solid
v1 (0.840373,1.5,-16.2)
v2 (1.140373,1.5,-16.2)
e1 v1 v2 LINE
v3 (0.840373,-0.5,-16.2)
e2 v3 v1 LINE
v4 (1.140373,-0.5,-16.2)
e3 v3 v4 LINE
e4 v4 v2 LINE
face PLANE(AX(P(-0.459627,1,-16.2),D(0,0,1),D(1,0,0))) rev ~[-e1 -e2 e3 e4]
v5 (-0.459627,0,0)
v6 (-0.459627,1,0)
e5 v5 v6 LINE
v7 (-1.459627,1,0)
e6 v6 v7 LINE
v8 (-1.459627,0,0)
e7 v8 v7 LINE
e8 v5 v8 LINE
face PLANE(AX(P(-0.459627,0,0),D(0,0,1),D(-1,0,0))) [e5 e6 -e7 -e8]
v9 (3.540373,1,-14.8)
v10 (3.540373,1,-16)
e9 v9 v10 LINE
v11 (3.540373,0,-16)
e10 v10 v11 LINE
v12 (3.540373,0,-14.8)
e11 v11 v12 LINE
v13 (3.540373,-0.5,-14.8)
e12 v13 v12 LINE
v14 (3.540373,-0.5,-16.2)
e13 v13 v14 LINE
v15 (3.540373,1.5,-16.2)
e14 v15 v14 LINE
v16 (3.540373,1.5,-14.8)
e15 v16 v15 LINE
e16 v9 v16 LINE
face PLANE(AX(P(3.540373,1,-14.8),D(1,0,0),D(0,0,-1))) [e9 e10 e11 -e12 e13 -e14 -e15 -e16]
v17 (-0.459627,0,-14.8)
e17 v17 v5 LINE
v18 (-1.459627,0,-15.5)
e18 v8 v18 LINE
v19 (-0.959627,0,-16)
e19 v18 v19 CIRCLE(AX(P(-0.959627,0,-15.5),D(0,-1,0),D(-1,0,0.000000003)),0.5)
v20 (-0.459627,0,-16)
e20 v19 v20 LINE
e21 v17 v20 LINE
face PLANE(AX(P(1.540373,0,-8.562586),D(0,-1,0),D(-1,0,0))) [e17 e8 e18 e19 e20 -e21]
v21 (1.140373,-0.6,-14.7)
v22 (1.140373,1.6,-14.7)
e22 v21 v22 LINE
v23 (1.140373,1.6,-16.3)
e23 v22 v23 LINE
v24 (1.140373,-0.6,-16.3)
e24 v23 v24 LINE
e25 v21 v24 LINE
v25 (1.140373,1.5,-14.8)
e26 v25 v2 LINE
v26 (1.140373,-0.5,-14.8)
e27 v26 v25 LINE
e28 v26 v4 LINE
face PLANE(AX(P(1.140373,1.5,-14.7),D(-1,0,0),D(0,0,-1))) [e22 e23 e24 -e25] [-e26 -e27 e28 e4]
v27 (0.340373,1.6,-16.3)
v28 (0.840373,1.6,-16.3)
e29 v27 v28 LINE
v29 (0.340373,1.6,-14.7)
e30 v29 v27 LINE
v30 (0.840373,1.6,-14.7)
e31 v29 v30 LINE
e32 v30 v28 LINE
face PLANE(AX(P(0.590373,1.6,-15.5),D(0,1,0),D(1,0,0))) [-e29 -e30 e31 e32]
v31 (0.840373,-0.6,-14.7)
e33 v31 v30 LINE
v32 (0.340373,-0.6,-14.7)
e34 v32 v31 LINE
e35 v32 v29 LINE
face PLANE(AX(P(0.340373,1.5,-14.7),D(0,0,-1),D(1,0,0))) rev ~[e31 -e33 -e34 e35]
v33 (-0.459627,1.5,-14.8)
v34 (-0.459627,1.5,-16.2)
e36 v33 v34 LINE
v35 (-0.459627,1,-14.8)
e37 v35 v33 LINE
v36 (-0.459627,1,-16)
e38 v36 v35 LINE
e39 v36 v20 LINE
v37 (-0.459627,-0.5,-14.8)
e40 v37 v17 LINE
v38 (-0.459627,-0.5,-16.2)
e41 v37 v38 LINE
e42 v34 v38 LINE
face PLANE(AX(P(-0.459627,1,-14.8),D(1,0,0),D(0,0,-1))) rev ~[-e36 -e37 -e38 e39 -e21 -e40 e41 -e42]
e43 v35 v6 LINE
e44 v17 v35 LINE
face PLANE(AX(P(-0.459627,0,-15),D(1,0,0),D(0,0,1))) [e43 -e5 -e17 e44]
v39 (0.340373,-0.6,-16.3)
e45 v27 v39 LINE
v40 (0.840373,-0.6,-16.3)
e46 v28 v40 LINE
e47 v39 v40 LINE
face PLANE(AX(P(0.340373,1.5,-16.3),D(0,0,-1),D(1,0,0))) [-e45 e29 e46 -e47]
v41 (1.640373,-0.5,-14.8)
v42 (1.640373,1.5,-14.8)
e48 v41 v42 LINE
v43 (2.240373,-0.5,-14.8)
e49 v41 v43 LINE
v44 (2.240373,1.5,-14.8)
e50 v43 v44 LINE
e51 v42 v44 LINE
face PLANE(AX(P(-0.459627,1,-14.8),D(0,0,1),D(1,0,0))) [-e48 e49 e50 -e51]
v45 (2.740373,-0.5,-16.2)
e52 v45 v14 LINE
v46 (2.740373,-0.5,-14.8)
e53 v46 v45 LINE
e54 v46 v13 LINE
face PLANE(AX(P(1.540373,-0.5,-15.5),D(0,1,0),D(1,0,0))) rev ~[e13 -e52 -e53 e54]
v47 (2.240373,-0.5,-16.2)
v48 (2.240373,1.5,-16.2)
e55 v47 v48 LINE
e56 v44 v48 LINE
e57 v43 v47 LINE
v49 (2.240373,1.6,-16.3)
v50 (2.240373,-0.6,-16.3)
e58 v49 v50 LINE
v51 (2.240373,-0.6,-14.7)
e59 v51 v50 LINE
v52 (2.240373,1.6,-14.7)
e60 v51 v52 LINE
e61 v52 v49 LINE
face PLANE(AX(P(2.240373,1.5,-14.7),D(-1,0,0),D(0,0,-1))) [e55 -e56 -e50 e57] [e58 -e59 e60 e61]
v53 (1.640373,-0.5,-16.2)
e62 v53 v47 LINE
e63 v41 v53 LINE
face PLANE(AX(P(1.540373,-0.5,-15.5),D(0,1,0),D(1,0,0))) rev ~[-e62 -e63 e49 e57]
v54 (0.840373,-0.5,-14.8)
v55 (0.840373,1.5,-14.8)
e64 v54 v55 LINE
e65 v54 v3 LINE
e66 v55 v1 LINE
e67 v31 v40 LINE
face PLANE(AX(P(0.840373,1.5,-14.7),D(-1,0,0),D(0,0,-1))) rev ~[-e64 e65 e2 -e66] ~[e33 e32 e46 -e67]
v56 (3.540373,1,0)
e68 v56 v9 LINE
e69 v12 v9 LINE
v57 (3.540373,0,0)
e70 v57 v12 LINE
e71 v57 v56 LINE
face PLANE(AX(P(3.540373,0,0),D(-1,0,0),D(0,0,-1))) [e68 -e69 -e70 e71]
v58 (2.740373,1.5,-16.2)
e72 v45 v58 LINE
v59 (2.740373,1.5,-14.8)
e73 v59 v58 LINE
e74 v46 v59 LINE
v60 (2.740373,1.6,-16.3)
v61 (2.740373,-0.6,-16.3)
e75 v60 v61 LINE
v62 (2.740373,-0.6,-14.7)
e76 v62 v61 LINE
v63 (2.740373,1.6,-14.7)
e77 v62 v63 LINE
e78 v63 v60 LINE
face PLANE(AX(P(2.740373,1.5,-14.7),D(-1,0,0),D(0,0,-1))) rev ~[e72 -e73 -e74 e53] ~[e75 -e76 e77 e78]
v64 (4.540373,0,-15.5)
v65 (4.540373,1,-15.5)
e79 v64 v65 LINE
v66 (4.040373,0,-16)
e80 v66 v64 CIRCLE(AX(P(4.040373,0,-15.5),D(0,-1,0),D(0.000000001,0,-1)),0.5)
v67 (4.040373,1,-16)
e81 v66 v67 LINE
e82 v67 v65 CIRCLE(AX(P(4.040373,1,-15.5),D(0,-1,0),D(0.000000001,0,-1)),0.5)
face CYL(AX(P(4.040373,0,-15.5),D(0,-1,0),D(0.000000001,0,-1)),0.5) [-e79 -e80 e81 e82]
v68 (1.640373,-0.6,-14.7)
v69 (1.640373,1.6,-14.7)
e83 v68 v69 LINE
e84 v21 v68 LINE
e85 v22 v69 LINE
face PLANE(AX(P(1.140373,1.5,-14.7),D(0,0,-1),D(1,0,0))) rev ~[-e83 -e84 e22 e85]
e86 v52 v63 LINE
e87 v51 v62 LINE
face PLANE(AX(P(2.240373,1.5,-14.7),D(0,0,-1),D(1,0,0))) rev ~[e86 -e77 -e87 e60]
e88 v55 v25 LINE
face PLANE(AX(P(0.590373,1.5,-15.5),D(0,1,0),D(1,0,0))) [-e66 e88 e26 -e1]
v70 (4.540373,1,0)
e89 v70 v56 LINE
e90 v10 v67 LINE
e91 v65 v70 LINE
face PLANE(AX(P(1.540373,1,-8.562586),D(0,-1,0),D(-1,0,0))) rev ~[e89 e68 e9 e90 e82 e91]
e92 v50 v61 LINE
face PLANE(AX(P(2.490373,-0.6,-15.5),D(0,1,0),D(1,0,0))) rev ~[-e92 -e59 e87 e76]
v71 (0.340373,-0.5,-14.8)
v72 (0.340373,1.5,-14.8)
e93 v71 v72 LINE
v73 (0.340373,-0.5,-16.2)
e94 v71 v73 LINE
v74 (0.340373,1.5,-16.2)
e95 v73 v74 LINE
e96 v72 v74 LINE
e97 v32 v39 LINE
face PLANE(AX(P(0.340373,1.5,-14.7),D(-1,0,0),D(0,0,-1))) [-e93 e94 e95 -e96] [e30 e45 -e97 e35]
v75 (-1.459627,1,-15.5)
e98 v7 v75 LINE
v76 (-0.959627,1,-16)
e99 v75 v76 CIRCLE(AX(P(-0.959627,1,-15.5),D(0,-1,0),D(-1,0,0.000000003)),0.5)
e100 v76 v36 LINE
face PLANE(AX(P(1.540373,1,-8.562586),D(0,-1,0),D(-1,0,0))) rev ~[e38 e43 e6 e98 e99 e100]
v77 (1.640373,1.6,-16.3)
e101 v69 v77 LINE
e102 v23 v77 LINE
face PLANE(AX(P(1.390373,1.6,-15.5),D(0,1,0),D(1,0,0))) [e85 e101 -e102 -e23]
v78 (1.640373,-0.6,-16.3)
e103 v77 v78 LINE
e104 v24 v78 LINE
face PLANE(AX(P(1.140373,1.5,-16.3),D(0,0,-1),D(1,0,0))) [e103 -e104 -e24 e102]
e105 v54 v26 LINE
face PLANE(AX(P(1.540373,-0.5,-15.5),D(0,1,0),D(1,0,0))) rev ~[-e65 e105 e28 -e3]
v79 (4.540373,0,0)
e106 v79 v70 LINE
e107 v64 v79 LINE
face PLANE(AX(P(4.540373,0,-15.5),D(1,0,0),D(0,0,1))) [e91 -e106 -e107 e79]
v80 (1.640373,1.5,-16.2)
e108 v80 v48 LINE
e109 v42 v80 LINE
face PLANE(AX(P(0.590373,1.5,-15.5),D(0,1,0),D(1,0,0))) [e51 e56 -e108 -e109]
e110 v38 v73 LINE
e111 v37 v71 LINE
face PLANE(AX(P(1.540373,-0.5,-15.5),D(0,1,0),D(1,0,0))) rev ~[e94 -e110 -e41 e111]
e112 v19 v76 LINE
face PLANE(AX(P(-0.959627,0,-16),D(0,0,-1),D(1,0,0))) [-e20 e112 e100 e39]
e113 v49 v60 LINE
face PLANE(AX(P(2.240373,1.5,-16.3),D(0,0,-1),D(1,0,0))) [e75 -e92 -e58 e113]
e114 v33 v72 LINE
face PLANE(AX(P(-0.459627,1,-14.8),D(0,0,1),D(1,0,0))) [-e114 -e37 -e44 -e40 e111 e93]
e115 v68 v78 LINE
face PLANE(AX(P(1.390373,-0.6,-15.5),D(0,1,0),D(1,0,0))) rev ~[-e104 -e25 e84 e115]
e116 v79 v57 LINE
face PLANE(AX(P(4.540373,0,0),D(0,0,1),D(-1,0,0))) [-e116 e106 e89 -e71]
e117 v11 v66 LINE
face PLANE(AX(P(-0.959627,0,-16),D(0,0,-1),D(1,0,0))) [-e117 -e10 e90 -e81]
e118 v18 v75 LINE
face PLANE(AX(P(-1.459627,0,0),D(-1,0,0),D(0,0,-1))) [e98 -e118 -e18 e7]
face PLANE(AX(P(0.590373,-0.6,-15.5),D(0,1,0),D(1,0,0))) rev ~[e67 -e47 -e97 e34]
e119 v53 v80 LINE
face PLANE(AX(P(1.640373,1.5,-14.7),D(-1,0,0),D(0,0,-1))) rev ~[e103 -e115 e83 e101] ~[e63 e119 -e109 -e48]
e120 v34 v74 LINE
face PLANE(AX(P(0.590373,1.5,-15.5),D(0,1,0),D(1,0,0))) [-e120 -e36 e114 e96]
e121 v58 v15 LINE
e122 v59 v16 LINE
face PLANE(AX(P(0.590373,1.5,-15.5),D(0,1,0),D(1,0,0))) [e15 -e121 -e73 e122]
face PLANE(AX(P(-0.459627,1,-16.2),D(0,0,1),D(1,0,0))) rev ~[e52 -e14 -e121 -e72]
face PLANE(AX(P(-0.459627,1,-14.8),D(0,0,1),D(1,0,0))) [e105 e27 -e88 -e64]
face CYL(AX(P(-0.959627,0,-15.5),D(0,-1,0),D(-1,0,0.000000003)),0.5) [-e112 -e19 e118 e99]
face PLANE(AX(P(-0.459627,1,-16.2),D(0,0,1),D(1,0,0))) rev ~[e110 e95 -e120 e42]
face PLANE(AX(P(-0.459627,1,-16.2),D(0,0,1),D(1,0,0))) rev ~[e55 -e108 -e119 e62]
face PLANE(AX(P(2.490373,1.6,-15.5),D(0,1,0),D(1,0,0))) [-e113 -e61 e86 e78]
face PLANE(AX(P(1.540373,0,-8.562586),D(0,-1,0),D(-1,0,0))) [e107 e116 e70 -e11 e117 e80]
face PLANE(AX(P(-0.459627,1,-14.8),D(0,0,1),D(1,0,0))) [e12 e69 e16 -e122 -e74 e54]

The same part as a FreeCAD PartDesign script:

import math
import FreeCAD as App
import Part
import Sketcher
Q = App.Units.Quantity


def add_polygon(sketch, points):
    """Adds a closed chain of lines whose ends are joined by coincident constraints."""
    first, n = sketch.GeometryCount, len(points)
    for a, b in zip(points, points[1:] + points[:1]):
        sketch.addGeometry(Part.LineSegment(App.Vector(*a, 0), App.Vector(*b, 0)), False)
    for i in range(n):
        sketch.addConstraint(Sketcher.Constraint("Coincident", first + i, 2, first + (i + 1) % n, 1))

doc = App.newDocument("Part")
body = doc.addObject("PartDesign::Body", "Body")

# Sketch on XZ plane
sketch1 = doc.addObject("Sketcher::SketchObject", "Sketch")
body.addObject(sketch1)
sketch1.AttachmentSupport = (doc.XZ_Plane, [""])
sketch1.MapMode = "FlatFace"
sketch1.addGeometry(Part.LineSegment(App.Vector(-1.46, -15.5, 0), App.Vector(-1.46, 0, 0)), False)
sketch1.addGeometry(Part.LineSegment(App.Vector(-1.46, 0, 0), App.Vector(-0.46, 0, 0)), False)
sketch1.addGeometry(Part.LineSegment(App.Vector(-0.46, 0, 0), App.Vector(-0.46, -15, 0)), False)
sketch1.addGeometry(Part.LineSegment(App.Vector(-0.46, -15, 0), App.Vector(3.54, -15, 0)), False)
sketch1.addGeometry(Part.LineSegment(App.Vector(3.54, -15, 0), App.Vector(3.54, 0, 0)), False)
sketch1.addGeometry(Part.LineSegment(App.Vector(3.54, 0, 0), App.Vector(4.54, 0, 0)), False)
sketch1.addGeometry(Part.LineSegment(App.Vector(4.54, 0, 0), App.Vector(4.54, -15.5, 0)), False)
sketch1.addGeometry(Part.ArcOfCircle(Part.Circle(App.Vector(4.04, -15.5, 0), App.Vector(0, 0, 1), 0.5), math.radians(-90), math.radians(0)), False)
sketch1.addGeometry(Part.LineSegment(App.Vector(4.04, -16, 0), App.Vector(-0.96, -16, 0)), False)
sketch1.addGeometry(Part.ArcOfCircle(Part.Circle(App.Vector(-0.96, -15.5, 0), App.Vector(0, 0, 1), 0.5), math.radians(180), math.radians(270)), False)
sketch1.addConstraint(Sketcher.Constraint("Coincident", 0, 2, 1, 1))
sketch1.addConstraint(Sketcher.Constraint("Coincident", 1, 2, 2, 1))
sketch1.addConstraint(Sketcher.Constraint("Coincident", 2, 2, 3, 1))
sketch1.addConstraint(Sketcher.Constraint("Coincident", 3, 2, 4, 1))
sketch1.addConstraint(Sketcher.Constraint("Coincident", 4, 2, 5, 1))
sketch1.addConstraint(Sketcher.Constraint("Coincident", 5, 2, 6, 1))
sketch1.addConstraint(Sketcher.Constraint("Tangent", 6, 2, 7, 2))
sketch1.addConstraint(Sketcher.Constraint("Tangent", 7, 1, 8, 1))
sketch1.addConstraint(Sketcher.Constraint("Tangent", 8, 2, 9, 2))
sketch1.addConstraint(Sketcher.Constraint("Tangent", 9, 1, 0, 1))
sketch1.addConstraint(Sketcher.Constraint("Vertical", 0))
sketch1.addConstraint(Sketcher.Constraint("Horizontal", 1))
sketch1.addConstraint(Sketcher.Constraint("Vertical", 2))
sketch1.addConstraint(Sketcher.Constraint("Horizontal", 3))
sketch1.addConstraint(Sketcher.Constraint("Vertical", 4))
sketch1.addConstraint(Sketcher.Constraint("Horizontal", 5))
sketch1.addConstraint(Sketcher.Constraint("Vertical", 6))
sketch1.addConstraint(Sketcher.Constraint("Horizontal", 8))
sketch1.addConstraint(Sketcher.Constraint("Equal", 7, 9))
sketch1.addConstraint(Sketcher.Constraint("PointOnObject", 0, 2, -1))
sketch1.addConstraint(Sketcher.Constraint("PointOnObject", 4, 2, -1))
sketch1.addConstraint(Sketcher.Constraint("Equal", 1, 5))
sketch1.addConstraint(Sketcher.Constraint("Radius", 7, Q("0.5 mm")))
sketch1.addConstraint(Sketcher.Constraint("DistanceX", 1, 1, 1, 2, Q("1 mm")))
sketch1.addConstraint(Sketcher.Constraint("DistanceX", 3, 1, 3, 2, Q("4 mm")))
sketch1.addConstraint(Sketcher.Constraint("DistanceY", 2, 2, 2, 1, Q("15 mm")))
sketch1.addConstraint(Sketcher.Constraint("DistanceY", 0, 1, 0, 2, Q("15.5 mm")))
sketch1.addConstraint(Sketcher.Constraint("DistanceX", -1, 1, 7, 3, Q("4.040373 mm")))
pad1 = doc.addObject("PartDesign::Pad", "Pad")
body.addObject(pad1)
pad1.Profile = sketch1
pad1.Length = 1
pad1.Reversed = True

# Sketch on XZ plane
sketch2 = doc.addObject("Sketcher::SketchObject", "Sketch001")
body.addObject(sketch2)
sketch2.AttachmentSupport = (doc.XZ_Plane, [""])
sketch2.MapMode = "FlatFace"
sketch2.AttachmentOffset = App.Placement(App.Vector(0, 0, -1), App.Rotation())
add_polygon(sketch2, [(-0.5, -16.2), (-0.5, -14.8), (3.5, -14.8), (3.5, -16.2)])  # lines 0-3
sketch2.addConstraint(Sketcher.Constraint("Vertical", 0))
sketch2.addConstraint(Sketcher.Constraint("Horizontal", 1))
sketch2.addConstraint(Sketcher.Constraint("Vertical", 2))
sketch2.addConstraint(Sketcher.Constraint("Horizontal", 3))
sketch2.addConstraint(Sketcher.Constraint("DistanceX", 1, 1, 1, 2, Q("4 mm")))
sketch2.addConstraint(Sketcher.Constraint("DistanceY", 0, 1, 0, 2, Q("1.4 mm")))
sketch2.addConstraint(Sketcher.Constraint("DistanceY", 0, 2, -1, 1, Q("14.8 mm")))
sketch2.addConstraint(Sketcher.Constraint("DistanceX", 0, 2, -1, 1, Q("0.459627 mm")))
pad2 = doc.addObject("PartDesign::Pad", "Pad001")
body.addObject(pad2)
pad2.Profile = sketch2
pad2.Length = 3
pad2.Midplane = True

# Sketch on XZ plane
sketch3 = doc.addObject("Sketcher::SketchObject", "Sketch002")
body.addObject(sketch3)
sketch3.AttachmentSupport = (doc.XZ_Plane, [""])
sketch3.MapMode = "FlatFace"
sketch3.AttachmentOffset = App.Placement(App.Vector(0, 0, -2.5), App.Rotation())
add_polygon(sketch3, [(-0.5, -16.2), (-0.5, -14.8), (3.5, -14.8), (3.5, -16.2)])  # lines 0-3
sketch3.addConstraint(Sketcher.Constraint("Vertical", 0))
sketch3.addConstraint(Sketcher.Constraint("Horizontal", 1))
sketch3.addConstraint(Sketcher.Constraint("Vertical", 2))
sketch3.addConstraint(Sketcher.Constraint("Horizontal", 3))
sketch3.addConstraint(Sketcher.Constraint("DistanceX", 1, 1, 1, 2, Q("4 mm")))
sketch3.addConstraint(Sketcher.Constraint("DistanceY", 0, 1, 0, 2, Q("1.4 mm")))
sketch3.addConstraint(Sketcher.Constraint("DistanceY", 0, 2, -1, 1, Q("14.8 mm")))
sketch3.addConstraint(Sketcher.Constraint("DistanceX", 0, 2, -1, 1, Q("0.459627 mm")))
pocket1 = doc.addObject("PartDesign::Pocket", "Pocket")
body.addObject(pocket1)
pocket1.Profile = sketch3
pocket1.Length = 1
pocket1.Reversed = True

# Sketch on XZ plane
sketch4 = doc.addObject("Sketcher::SketchObject", "Sketch003")
body.addObject(sketch4)
sketch4.AttachmentSupport = (doc.XZ_Plane, [""])
sketch4.MapMode = "FlatFace"
sketch4.AttachmentOffset = App.Placement(App.Vector(0, 0, -1.5), App.Rotation())
add_polygon(sketch4, [(0.3, -16.3), (0.3, -14.7), (0.8, -14.7), (0.8, -16.3)])  # lines 0-3
add_polygon(sketch4, [(1.1, -16.3), (1.1, -14.7), (1.6, -14.7), (1.6, -16.3)])  # lines 4-7
add_polygon(sketch4, [(2.2, -16.3), (2.2, -14.7), (2.7, -14.7), (2.7, -16.3)])  # lines 8-11
sketch4.addConstraint(Sketcher.Constraint("Vertical", 0))
sketch4.addConstraint(Sketcher.Constraint("Horizontal", 1))
sketch4.addConstraint(Sketcher.Constraint("Vertical", 2))
sketch4.addConstraint(Sketcher.Constraint("Horizontal", 3))
sketch4.addConstraint(Sketcher.Constraint("Vertical", 4))
sketch4.addConstraint(Sketcher.Constraint("Horizontal", 5))
sketch4.addConstraint(Sketcher.Constraint("Vertical", 6))
sketch4.addConstraint(Sketcher.Constraint("Horizontal", 7))
sketch4.addConstraint(Sketcher.Constraint("Vertical", 8))
sketch4.addConstraint(Sketcher.Constraint("Horizontal", 9))
sketch4.addConstraint(Sketcher.Constraint("Vertical", 10))
sketch4.addConstraint(Sketcher.Constraint("Horizontal", 11))
sketch4.addConstraint(Sketcher.Constraint("Horizontal", 1, 2, 4, 2))
sketch4.addConstraint(Sketcher.Constraint("Horizontal", 3, 2, 6, 2))
sketch4.addConstraint(Sketcher.Constraint("Horizontal", 5, 2, 8, 2))
sketch4.addConstraint(Sketcher.Constraint("Horizontal", 7, 2, 10, 2))
sketch4.addConstraint(Sketcher.Constraint("Equal", 3, 5))
sketch4.addConstraint(Sketcher.Constraint("Equal", 7, 9))
sketch4.addConstraint(Sketcher.Constraint("DistanceX", 1, 1, 1, 2, Q("0.5 mm")))
sketch4.addConstraint(Sketcher.Constraint("DistanceY", 0, 1, 0, 2, Q("1.6 mm")))
sketch4.addConstraint(Sketcher.Constraint("DistanceY", 0, 2, -1, 1, Q("14.7 mm")))
sketch4.addConstraint(Sketcher.Constraint("DistanceX", 1, 2, 4, 2, Q("0.3 mm")))
sketch4.addConstraint(Sketcher.Constraint("DistanceX", 5, 2, 8, 2, Q("0.6 mm")))
sketch4.addConstraint(Sketcher.Constraint("DistanceX", -1, 1, 0, 2, Q("0.340373 mm")))
pad3 = doc.addObject("PartDesign::Pad", "Pad002")
body.addObject(pad3)
pad3.Profile = sketch4
pad3.Length = 2.1

# Sketch on XZ plane
sketch5 = doc.addObject("Sketcher::SketchObject", "Sketch004")
body.addObject(sketch5)
sketch5.AttachmentSupport = (doc.XZ_Plane, [""])
sketch5.MapMode = "FlatFace"
sketch5.AttachmentOffset = App.Placement(App.Vector(0, 0, -1.5), App.Rotation())
add_polygon(sketch5, [(0.3, -16.3), (0.3, -14.7), (0.8, -14.7), (0.8, -16.3)])  # lines 0-3
add_polygon(sketch5, [(1.1, -16.3), (1.1, -14.7), (1.6, -14.7), (1.6, -16.3)])  # lines 4-7
add_polygon(sketch5, [(2.2, -16.3), (2.2, -14.7), (2.7, -14.7), (2.7, -16.3)])  # lines 8-11
sketch5.addConstraint(Sketcher.Constraint("Vertical", 0))
sketch5.addConstraint(Sketcher.Constraint("Horizontal", 1))
sketch5.addConstraint(Sketcher.Constraint("Vertical", 2))
sketch5.addConstraint(Sketcher.Constraint("Horizontal", 3))
sketch5.addConstraint(Sketcher.Constraint("Vertical", 4))
sketch5.addConstraint(Sketcher.Constraint("Horizontal", 5))
sketch5.addConstraint(Sketcher.Constraint("Vertical", 6))
sketch5.addConstraint(Sketcher.Constraint("Horizontal", 7))
sketch5.addConstraint(Sketcher.Constraint("Vertical", 8))
sketch5.addConstraint(Sketcher.Constraint("Horizontal", 9))
sketch5.addConstraint(Sketcher.Constraint("Vertical", 10))
sketch5.addConstraint(Sketcher.Constraint("Horizontal", 11))
sketch5.addConstraint(Sketcher.Constraint("Horizontal", 1, 2, 4, 2))
sketch5.addConstraint(Sketcher.Constraint("Horizontal", 3, 2, 6, 2))
sketch5.addConstraint(Sketcher.Constraint("Horizontal", 5, 2, 8, 2))
sketch5.addConstraint(Sketcher.Constraint("Horizontal", 7, 2, 10, 2))
sketch5.addConstraint(Sketcher.Constraint("Equal", 3, 5))
sketch5.addConstraint(Sketcher.Constraint("Equal", 7, 9))
sketch5.addConstraint(Sketcher.Constraint("DistanceX", 1, 1, 1, 2, Q("0.5 mm")))
sketch5.addConstraint(Sketcher.Constraint("DistanceY", 0, 1, 0, 2, Q("1.6 mm")))
sketch5.addConstraint(Sketcher.Constraint("DistanceY", 0, 2, -1, 1, Q("14.7 mm")))
sketch5.addConstraint(Sketcher.Constraint("DistanceX", 1, 2, 4, 2, Q("0.3 mm")))
sketch5.addConstraint(Sketcher.Constraint("DistanceX", 5, 2, 8, 2, Q("0.6 mm")))
sketch5.addConstraint(Sketcher.Constraint("DistanceX", -1, 1, 0, 2, Q("0.340373 mm")))
pad4 = doc.addObject("PartDesign::Pad", "Pad003")
body.addObject(pad4)
pad4.Profile = sketch5
pad4.Length = 0.1
pad4.Reversed = True

doc.recompute()
